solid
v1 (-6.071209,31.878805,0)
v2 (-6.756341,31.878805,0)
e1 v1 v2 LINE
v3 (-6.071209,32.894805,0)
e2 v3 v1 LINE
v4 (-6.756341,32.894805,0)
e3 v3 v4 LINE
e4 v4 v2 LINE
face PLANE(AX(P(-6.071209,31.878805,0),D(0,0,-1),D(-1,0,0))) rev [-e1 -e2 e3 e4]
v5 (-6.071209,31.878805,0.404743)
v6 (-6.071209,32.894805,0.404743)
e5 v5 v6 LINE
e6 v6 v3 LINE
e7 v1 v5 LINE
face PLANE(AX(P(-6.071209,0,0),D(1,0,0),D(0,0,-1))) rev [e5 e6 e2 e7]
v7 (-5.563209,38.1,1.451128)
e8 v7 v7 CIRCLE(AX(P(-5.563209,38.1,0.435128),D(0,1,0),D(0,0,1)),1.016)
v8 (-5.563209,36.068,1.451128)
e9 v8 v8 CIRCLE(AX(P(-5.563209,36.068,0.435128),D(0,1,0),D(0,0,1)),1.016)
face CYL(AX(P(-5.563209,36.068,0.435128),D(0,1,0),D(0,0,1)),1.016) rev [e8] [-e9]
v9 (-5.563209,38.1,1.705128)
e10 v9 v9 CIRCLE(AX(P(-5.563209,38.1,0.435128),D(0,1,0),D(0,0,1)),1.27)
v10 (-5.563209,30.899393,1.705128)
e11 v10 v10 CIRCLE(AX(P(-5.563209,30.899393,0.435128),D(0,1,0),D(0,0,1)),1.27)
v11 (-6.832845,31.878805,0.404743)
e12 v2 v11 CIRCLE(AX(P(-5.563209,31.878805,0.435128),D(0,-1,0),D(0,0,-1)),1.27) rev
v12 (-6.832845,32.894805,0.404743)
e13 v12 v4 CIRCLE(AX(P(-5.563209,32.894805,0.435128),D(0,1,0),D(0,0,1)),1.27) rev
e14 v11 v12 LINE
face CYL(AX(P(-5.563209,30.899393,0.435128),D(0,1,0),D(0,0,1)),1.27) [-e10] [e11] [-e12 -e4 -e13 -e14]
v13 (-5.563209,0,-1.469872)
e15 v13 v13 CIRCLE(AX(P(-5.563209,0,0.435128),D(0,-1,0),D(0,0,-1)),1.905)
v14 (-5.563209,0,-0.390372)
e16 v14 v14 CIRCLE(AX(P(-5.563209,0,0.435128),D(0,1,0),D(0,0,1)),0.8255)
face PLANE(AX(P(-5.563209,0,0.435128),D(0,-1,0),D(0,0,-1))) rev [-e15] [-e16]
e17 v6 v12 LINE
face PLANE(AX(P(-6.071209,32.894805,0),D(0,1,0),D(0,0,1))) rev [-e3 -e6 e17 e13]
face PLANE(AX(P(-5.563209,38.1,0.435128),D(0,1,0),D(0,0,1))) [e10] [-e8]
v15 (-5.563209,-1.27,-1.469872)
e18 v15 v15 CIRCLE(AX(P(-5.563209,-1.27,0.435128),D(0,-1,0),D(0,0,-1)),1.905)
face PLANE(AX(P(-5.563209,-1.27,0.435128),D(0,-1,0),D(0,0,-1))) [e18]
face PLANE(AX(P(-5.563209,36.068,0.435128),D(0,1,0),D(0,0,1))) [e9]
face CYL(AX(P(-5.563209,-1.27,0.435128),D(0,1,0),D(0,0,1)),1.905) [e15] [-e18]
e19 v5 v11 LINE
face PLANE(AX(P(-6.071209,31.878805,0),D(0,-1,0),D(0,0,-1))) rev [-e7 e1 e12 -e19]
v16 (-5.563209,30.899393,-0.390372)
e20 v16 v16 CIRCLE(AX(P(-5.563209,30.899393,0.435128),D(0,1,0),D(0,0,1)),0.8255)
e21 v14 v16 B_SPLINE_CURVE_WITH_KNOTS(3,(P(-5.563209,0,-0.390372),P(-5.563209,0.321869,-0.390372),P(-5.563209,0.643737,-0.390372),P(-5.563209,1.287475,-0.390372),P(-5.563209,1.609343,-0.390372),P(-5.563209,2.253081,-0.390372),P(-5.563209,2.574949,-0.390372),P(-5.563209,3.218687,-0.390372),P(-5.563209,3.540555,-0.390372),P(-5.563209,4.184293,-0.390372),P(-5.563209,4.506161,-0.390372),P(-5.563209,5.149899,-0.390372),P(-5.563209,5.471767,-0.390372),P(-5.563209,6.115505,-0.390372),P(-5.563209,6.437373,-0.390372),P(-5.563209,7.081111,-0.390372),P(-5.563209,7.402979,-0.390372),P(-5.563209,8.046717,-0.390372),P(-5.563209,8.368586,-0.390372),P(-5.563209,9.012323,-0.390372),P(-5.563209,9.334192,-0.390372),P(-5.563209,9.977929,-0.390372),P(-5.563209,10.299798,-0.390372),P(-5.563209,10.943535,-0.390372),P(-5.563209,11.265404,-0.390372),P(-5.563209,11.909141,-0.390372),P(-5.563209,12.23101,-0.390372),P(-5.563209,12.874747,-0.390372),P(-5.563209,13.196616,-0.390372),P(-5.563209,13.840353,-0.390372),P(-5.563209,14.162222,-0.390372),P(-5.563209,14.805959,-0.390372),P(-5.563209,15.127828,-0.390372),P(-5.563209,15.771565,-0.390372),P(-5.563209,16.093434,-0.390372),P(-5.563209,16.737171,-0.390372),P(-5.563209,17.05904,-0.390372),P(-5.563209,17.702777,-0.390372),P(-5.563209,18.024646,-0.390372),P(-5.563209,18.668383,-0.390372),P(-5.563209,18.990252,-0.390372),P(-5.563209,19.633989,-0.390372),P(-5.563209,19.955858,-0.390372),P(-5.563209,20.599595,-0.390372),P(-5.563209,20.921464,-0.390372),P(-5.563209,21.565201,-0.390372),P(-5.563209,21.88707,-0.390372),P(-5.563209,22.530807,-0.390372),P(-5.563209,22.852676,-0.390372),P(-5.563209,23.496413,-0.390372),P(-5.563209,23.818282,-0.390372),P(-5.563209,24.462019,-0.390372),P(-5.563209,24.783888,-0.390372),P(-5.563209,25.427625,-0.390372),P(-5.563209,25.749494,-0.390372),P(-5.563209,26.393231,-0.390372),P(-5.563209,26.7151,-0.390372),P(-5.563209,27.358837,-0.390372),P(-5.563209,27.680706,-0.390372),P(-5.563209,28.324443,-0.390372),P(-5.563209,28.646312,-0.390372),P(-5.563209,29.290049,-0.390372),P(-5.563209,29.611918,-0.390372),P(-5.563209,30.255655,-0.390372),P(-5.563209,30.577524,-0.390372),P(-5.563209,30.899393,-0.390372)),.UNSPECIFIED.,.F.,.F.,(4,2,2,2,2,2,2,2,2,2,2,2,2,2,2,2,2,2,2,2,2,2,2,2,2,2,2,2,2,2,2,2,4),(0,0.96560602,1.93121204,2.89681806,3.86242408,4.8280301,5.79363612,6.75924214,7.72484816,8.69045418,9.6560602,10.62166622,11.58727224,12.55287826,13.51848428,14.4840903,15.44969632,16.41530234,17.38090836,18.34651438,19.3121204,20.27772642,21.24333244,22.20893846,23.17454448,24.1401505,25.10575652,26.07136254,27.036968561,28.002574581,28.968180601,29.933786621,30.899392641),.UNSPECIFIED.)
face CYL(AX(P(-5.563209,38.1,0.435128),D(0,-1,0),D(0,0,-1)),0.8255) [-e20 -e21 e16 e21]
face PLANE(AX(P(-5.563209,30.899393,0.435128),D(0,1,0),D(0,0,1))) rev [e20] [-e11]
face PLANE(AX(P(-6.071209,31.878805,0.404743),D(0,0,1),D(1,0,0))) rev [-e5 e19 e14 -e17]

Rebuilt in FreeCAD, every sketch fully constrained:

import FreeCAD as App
import Part
import Sketcher
from FreeCAD import Vector
Q = App.Units.Quantity

doc = App.newDocument("Part")
params = doc.addObject("Spreadsheet::Sheet", "Params")
for row, (alias, value) in enumerate([
    ("sketch1_diameter", "0.065 in"),
    ("pad1_length", "1.5 in"),
    ("sketch2_diameter", "0.15 in"),
    ("pad2_length", "0.05 in"),
    ("sketch3_diameter", "0.1 in"),
    ("pad3_length", "7.200607 mm"),
    ("sketch4_diameter", "0.08 in"),
    ("pocket1_length", "0.08 in"),
    ("sketch5_width", "0.04 in"),
    ("pocket2_length", "0.03 in"),
], start=1):
    params.set(f"A{row}", alias)
    params.set(f"B{row}", "=" + value)
    params.setAlias(f"B{row}", alias)

body = doc.addObject("PartDesign::Body", "Body")

sketch1 = doc.addObject("Sketcher::SketchObject", "Sketch")
body.addObject(sketch1)
sketch1.AttachmentSupport = (doc.XZ_Plane, [""])
sketch1.MapMode = "FlatFace"
sketch1.addGeometry(Part.Circle(Vector(-5.6, 0.4, 0), Vector(0, 0, 1), 0.8), False)
sketch1.addConstraint(Sketcher.Constraint("Diameter", 0, Q("0.065 in")))
sketch1.addConstraint(Sketcher.Constraint("DistanceX", 0, 3, -1, 1, 5.563209))
sketch1.addConstraint(Sketcher.Constraint("DistanceY", -1, 1, 0, 3, 0.435128))
sketch1.setExpression("Constraints[0]", "Params.sketch1_diameter")
pad1 = doc.addObject("PartDesign::Pad", "Pad")
body.addObject(pad1)
pad1.Profile = sketch1
pad1.setExpression("Length", "Params.pad1_length")
pad1.Reversed = True

sketch2 = doc.addObject("Sketcher::SketchObject", "Sketch001")
body.addObject(sketch2)
sketch2.AttachmentSupport = (doc.XZ_Plane, [""])
sketch2.MapMode = "FlatFace"
sketch2.addGeometry(Part.Circle(Vector(-5.6, 0.4, 0), Vector(0, 0, 1), 1.9), False)
sketch2.addConstraint(Sketcher.Constraint("Diameter", 0, Q("0.15 in")))
sketch2.addConstraint(Sketcher.Constraint("DistanceX", 0, 3, -1, 1, 5.563209))
sketch2.addConstraint(Sketcher.Constraint("DistanceY", -1, 1, 0, 3, 0.435128))
sketch2.setExpression("Constraints[0]", "Params.sketch2_diameter")
pad2 = doc.addObject("PartDesign::Pad", "Pad001")
body.addObject(pad2)
pad2.Profile = sketch2
pad2.setExpression("Length", "Params.pad2_length")

sketch3 = doc.addObject("Sketcher::SketchObject", "Sketch002")
body.addObject(sketch3)
sketch3.AttachmentSupport = (doc.XZ_Plane, [""])
sketch3.MapMode = "FlatFace"
sketch3.AttachmentOffset = App.Placement(Vector(0, 0, -1.5 * 25.4), App.Rotation())
sketch3.addGeometry(Part.Circle(Vector(-5.6, 0.4, 0), Vector(0, 0, 1), 1.3), False)
sketch3.addConstraint(Sketcher.Constraint("Diameter", 0, Q("0.1 in")))
sketch3.addConstraint(Sketcher.Constraint("DistanceX", 0, 3, -1, 1, 5.563209))
sketch3.addConstraint(Sketcher.Constraint("DistanceY", -1, 1, 0, 3, 0.435128))
sketch3.setExpression("Constraints[0]", "Params.sketch3_diameter")
pad3 = doc.addObject("PartDesign::Pad", "Pad002")
body.addObject(pad3)
pad3.Profile = sketch3
pad3.setExpression("Length", "Params.pad3_length")

sketch4 = doc.addObject("Sketcher::SketchObject", "Sketch003")
body.addObject(sketch4)
sketch4.AttachmentSupport = (doc.XZ_Plane, [""])
sketch4.MapMode = "FlatFace"
sketch4.AttachmentOffset = App.Placement(Vector(0, 0, -1.5 * 25.4), App.Rotation())
sketch4.addGeometry(Part.Circle(Vector(-5.6, 0.4, 0), Vector(0, 0, 1), 1), False)
sketch4.addConstraint(Sketcher.Constraint("Diameter", 0, Q("0.08 in")))
sketch4.addConstraint(Sketcher.Constraint("DistanceX", 0, 3, -1, 1, 5.563209))
sketch4.addConstraint(Sketcher.Constraint("DistanceY", -1, 1, 0, 3, 0.435128))
sketch4.setExpression("Constraints[0]", "Params.sketch4_diameter")
pocket1 = doc.addObject("PartDesign::Pocket", "Pocket")
body.addObject(pocket1)
pocket1.Profile = sketch4
pocket1.setExpression("Length", "Params.pocket1_length")
pocket1.Reversed = True

sketch5 = doc.addObject("Sketcher::SketchObject", "Sketch004")
body.addObject(sketch5)
sketch5.AttachmentSupport = (doc.YZ_Plane, [""])
sketch5.MapMode = "FlatFace"
sketch5.AttachmentOffset = App.Placement(Vector(0, 0, -6.833209), App.Rotation())
sketch5.addGeometry(Part.LineSegment(Vector(32.89, 0, 0), Vector(31.88, 0, 0)), False)
sketch5.addGeometry(Part.LineSegment(Vector(31.88, 0, 0), Vector(31.88, 0.4, 0)), False)
sketch5.addGeometry(Part.LineSegment(Vector(31.88, 0.4, 0), Vector(32.89, 0.4, 0)), False)
sketch5.addGeometry(Part.LineSegment(Vector(32.89, 0.4, 0), Vector(32.89, 0, 0)), False)
sketch5.addConstraint(Sketcher.Constraint("Coincident", 0, 2, 1, 1))
sketch5.addConstraint(Sketcher.Constraint("Coincident", 1, 2, 2, 1))
sketch5.addConstraint(Sketcher.Constraint("Coincident", 2, 2, 3, 1))
sketch5.addConstraint(Sketcher.Constraint("Coincident", 3, 2, 0, 1))
sketch5.addConstraint(Sketcher.Constraint("Horizontal", 0))
sketch5.addConstraint(Sketcher.Constraint("Vertical", 1))
sketch5.addConstraint(Sketcher.Constraint("Horizontal", 2))
sketch5.addConstraint(Sketcher.Constraint("Vertical", 3))
sketch5.addConstraint(Sketcher.Constraint("PointOnObject", 0, 2, -1))
sketch5.addConstraint(Sketcher.Constraint("DistanceX", 0, 2, 0, 1, Q("0.04 in")))
sketch5.addConstraint(Sketcher.Constraint("DistanceY", 1, 1, 1, 2, 0.404743))
sketch5.addConstraint(Sketcher.Constraint("DistanceX", -1, 1, 0, 2, 31.878805))
sketch5.setExpression("Constraints[9]", "Params.sketch5_width")
pocket2 = doc.addObject("PartDesign::Pocket", "Pocket001")
body.addObject(pocket2)
pocket2.Profile = sketch5
pocket2.setExpression("Length", "Params.pocket2_length")
pocket2.Reversed = True

doc.recompute()
